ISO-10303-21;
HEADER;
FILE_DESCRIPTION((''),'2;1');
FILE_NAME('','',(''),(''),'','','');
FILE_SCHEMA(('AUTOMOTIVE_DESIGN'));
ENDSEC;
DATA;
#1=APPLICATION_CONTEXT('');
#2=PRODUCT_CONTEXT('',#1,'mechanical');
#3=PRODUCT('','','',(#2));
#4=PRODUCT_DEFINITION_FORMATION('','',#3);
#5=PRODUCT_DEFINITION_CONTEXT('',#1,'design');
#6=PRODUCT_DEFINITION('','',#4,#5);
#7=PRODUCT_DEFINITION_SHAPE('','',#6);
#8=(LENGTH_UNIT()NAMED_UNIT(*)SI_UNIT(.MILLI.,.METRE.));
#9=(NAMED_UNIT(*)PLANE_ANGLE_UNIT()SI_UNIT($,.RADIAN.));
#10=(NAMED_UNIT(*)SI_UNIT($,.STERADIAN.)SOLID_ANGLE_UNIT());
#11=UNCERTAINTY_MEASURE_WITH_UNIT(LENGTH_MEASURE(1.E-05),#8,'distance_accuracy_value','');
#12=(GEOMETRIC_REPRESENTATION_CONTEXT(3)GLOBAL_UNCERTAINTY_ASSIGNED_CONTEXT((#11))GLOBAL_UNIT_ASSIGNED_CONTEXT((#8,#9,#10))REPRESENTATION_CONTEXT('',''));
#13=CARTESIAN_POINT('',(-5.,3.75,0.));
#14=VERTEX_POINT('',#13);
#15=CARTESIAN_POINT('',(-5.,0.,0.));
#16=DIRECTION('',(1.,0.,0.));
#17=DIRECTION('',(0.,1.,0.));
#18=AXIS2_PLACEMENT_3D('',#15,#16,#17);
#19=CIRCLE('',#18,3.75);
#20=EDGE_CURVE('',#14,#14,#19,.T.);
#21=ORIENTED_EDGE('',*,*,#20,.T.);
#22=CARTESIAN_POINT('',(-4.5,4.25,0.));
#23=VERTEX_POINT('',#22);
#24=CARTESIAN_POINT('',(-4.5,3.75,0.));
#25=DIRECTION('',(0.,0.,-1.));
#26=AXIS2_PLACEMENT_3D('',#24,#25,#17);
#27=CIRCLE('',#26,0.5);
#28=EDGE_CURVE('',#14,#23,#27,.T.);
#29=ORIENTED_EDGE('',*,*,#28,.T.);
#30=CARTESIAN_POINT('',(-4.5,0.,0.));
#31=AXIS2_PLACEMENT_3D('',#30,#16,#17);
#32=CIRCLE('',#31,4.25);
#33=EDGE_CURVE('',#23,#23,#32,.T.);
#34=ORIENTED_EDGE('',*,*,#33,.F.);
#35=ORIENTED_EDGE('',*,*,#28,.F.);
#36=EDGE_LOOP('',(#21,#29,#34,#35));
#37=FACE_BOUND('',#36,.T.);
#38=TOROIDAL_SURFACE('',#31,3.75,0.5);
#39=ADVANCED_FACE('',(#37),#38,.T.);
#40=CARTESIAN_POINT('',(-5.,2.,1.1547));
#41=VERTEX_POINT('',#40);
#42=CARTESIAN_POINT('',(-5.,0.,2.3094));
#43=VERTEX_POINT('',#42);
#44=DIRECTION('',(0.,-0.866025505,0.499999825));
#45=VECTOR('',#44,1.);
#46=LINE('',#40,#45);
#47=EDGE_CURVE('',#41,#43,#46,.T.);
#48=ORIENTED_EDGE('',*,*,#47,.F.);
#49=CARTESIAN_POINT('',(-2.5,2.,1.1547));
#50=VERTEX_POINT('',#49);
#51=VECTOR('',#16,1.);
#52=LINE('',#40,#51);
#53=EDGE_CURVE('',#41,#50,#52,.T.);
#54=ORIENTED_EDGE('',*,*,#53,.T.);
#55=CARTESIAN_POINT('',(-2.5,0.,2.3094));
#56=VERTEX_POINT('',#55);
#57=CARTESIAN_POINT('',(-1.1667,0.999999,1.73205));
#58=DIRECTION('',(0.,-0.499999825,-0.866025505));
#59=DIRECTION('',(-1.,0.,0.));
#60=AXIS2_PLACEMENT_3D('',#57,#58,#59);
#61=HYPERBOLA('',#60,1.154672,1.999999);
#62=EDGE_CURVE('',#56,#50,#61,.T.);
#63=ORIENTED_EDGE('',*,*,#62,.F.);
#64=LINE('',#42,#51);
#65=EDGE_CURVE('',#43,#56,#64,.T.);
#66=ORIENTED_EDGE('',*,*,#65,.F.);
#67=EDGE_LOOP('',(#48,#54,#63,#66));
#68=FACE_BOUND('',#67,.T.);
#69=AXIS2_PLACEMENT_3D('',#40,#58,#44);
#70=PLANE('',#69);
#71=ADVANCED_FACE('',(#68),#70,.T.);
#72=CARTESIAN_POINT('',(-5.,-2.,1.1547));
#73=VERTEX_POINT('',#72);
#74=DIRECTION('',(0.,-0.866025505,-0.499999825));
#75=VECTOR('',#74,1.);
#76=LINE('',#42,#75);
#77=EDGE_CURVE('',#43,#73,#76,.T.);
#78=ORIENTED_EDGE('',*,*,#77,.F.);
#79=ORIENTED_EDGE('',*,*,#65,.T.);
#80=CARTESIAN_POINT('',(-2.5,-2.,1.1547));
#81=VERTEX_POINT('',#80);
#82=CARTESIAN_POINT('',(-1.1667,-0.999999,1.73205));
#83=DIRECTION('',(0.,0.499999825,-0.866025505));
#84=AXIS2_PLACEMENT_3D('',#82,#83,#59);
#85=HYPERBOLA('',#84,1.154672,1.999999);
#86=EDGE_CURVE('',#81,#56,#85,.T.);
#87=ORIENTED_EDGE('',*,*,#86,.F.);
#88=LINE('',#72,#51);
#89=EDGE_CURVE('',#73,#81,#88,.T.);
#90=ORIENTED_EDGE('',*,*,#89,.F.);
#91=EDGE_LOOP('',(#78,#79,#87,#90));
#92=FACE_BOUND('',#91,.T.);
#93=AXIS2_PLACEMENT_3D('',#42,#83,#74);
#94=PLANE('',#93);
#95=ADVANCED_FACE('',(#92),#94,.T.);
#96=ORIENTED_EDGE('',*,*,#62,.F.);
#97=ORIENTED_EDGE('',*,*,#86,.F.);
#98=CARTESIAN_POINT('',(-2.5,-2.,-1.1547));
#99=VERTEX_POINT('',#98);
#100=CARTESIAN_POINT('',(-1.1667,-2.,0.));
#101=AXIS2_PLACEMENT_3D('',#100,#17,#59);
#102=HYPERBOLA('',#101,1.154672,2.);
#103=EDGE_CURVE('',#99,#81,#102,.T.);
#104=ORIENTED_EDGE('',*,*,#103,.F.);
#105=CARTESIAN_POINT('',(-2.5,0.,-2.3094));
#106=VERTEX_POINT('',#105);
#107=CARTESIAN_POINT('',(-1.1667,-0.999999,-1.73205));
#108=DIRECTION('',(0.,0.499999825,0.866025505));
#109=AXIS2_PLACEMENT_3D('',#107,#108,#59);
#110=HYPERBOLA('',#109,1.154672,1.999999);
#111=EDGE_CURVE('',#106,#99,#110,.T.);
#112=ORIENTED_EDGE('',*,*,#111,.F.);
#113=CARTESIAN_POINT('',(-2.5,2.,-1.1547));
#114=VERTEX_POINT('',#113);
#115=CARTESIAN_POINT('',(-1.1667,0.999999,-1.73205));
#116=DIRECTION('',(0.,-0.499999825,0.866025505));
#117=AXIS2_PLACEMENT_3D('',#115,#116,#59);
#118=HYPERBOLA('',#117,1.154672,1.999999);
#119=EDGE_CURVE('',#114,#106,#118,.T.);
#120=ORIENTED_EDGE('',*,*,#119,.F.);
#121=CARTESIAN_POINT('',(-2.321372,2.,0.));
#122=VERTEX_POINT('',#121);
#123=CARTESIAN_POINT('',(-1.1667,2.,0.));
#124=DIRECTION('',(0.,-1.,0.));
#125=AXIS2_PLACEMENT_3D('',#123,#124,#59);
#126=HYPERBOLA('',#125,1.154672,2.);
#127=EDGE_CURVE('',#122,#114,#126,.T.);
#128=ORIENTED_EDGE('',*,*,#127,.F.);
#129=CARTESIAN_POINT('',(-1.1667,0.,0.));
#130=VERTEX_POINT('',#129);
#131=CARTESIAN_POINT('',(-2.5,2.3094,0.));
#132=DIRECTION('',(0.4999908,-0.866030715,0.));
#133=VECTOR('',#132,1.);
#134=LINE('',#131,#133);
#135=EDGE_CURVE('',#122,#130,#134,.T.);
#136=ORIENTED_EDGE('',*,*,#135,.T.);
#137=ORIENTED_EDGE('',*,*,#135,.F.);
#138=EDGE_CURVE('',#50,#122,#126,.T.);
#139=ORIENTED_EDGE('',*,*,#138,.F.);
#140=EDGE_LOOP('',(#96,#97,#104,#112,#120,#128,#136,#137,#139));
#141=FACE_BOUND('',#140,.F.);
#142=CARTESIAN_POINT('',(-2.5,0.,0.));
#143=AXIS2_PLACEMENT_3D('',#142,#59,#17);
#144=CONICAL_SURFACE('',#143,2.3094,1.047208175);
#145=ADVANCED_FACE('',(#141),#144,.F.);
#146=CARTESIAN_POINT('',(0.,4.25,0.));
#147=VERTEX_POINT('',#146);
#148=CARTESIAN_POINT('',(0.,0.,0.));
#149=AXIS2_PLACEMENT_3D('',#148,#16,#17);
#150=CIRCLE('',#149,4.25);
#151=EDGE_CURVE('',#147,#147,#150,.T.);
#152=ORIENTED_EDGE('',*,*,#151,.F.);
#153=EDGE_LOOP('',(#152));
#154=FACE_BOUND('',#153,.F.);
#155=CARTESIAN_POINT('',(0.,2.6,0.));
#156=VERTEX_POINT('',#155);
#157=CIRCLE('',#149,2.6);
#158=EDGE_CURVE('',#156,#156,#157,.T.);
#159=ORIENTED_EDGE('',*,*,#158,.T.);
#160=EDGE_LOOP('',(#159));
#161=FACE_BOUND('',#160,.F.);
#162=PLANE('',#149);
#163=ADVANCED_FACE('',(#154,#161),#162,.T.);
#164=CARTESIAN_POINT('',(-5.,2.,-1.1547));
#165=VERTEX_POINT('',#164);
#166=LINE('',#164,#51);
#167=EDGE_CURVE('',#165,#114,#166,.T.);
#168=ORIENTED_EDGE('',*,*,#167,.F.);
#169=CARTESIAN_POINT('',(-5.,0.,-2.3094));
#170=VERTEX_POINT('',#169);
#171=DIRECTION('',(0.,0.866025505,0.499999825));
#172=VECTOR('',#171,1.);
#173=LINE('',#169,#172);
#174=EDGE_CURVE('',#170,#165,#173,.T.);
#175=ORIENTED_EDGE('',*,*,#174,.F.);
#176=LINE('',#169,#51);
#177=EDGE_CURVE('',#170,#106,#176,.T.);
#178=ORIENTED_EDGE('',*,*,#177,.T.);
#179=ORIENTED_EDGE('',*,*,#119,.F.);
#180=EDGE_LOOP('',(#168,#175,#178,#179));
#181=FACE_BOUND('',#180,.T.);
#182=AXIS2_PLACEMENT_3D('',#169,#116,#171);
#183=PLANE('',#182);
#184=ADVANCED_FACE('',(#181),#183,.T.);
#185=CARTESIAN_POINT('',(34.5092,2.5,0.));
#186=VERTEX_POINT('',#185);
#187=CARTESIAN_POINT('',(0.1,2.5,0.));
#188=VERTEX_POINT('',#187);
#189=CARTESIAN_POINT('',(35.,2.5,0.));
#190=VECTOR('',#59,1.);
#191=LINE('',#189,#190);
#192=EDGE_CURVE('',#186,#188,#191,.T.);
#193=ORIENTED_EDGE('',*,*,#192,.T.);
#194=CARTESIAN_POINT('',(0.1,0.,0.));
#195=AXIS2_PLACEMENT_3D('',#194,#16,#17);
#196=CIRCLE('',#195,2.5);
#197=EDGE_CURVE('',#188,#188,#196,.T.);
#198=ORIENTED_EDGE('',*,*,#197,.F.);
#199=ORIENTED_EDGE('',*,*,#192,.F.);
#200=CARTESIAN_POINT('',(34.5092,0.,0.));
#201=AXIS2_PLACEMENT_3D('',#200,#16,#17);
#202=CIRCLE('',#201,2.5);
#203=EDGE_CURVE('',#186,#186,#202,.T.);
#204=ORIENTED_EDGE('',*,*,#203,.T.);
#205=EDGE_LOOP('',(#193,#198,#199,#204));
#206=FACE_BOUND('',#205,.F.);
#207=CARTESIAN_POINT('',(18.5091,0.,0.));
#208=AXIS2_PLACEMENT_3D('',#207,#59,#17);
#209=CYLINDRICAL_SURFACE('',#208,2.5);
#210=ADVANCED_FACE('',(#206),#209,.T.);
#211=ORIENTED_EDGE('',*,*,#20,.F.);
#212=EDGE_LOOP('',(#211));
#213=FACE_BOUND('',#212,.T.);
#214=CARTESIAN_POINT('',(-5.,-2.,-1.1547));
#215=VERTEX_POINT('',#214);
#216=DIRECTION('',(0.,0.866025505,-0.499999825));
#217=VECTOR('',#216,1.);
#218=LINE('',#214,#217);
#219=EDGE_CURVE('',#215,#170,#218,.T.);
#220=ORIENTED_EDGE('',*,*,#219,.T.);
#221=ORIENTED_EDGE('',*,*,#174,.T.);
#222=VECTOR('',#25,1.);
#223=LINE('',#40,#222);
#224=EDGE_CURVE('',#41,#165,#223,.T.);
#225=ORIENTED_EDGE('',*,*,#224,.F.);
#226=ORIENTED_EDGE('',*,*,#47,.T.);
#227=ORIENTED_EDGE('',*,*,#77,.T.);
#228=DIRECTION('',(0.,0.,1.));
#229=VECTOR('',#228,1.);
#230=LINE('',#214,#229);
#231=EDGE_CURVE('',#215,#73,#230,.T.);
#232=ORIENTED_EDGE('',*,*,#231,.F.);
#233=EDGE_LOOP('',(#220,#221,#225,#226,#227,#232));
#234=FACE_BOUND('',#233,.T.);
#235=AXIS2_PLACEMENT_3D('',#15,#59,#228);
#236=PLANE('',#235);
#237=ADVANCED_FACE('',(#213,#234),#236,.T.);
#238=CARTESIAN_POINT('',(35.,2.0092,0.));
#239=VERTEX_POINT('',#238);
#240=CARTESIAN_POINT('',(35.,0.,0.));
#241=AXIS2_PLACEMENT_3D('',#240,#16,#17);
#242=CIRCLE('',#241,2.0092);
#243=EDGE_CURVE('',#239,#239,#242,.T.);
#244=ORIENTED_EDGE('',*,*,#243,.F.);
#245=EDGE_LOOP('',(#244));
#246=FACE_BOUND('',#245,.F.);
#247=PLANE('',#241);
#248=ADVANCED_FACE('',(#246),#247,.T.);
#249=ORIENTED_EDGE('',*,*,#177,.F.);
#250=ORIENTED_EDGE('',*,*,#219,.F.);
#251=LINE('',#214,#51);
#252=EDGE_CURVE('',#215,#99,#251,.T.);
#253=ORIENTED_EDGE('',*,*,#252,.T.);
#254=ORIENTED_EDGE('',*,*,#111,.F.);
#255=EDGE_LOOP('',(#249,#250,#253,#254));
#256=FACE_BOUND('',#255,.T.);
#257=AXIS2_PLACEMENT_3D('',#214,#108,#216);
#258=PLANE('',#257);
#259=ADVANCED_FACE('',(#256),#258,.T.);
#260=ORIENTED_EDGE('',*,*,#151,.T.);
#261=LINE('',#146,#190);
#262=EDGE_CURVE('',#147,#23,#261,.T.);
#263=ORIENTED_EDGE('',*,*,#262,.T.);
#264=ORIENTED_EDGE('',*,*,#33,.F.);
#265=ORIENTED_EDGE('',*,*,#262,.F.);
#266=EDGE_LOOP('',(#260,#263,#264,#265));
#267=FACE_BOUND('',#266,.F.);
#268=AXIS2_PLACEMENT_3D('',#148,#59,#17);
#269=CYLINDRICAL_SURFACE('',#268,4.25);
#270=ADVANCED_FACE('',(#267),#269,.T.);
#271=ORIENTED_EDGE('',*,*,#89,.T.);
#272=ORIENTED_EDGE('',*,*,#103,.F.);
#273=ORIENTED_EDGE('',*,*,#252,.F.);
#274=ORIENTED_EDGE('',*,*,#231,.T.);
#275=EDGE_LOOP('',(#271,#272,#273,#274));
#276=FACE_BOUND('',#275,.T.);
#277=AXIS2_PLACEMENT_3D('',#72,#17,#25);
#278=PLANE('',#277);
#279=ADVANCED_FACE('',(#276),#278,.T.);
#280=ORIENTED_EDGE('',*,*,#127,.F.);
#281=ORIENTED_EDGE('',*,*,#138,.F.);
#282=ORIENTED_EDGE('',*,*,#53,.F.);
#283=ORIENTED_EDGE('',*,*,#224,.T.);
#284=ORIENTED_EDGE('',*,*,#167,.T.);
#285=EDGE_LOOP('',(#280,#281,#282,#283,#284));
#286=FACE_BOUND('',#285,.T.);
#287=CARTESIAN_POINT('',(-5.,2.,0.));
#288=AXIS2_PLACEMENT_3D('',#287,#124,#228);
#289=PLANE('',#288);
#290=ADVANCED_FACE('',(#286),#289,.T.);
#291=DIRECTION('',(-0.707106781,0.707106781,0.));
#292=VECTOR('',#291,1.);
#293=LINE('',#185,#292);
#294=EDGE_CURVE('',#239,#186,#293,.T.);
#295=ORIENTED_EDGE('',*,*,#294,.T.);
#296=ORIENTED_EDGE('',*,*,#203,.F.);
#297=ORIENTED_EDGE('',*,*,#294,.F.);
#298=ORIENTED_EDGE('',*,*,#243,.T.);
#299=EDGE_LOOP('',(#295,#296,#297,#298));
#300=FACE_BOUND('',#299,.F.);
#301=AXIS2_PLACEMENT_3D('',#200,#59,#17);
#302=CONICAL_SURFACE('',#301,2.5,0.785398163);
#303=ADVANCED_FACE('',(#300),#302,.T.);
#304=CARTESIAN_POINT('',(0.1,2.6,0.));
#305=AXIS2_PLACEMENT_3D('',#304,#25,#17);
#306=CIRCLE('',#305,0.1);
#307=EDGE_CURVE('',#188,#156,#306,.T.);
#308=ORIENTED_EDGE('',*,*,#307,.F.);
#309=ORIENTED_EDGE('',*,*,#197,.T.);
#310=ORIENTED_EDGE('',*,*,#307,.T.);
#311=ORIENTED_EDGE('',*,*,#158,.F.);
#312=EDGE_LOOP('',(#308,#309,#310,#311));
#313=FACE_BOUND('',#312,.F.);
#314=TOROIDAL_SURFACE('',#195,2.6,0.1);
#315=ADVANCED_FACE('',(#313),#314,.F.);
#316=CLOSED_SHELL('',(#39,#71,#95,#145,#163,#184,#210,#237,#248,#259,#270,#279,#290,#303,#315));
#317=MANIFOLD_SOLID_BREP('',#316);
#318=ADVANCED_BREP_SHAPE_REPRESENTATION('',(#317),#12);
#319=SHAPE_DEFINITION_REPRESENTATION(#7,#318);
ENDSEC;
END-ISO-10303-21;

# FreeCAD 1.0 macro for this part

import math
import FreeCAD as App
import Part
import Sketcher
Q = App.Units.Quantity


def edges_at(feature, points):
    """Names of the edges that pass closest to the given points."""
    edges = feature.Shape.Edges
    near = lambda p: min(range(len(edges)), key=lambda i: edges[i].distToShape(Part.Vertex(*p))[0])
    return sorted({f"Edge{near(p) + 1}" for p in points})

doc = App.newDocument("Part")
body = doc.addObject("PartDesign::Body", "Body")

# Sketch on XY plane
sketch1 = body.newObject("Sketcher::SketchObject", "Sketch")
sketch1.AttachmentSupport = (doc.getObject("XY_Plane"), [""])
sketch1.MapMode = "FlatFace"
sketch1.addGeometry(Part.LineSegment(App.Vector(-2.5, 2.3, 0), App.Vector(-1.2, 0, 0)), False)
sketch1.addGeometry(Part.LineSegment(App.Vector(-1.2, 0, 0), App.Vector(35, 0, 0)), False)
sketch1.addGeometry(Part.LineSegment(App.Vector(35, 0, 0), App.Vector(35, 2.5, 0)), False)
sketch1.addGeometry(Part.LineSegment(App.Vector(35, 2.5, 0), App.Vector(0, 2.5, 0)), False)
sketch1.addGeometry(Part.LineSegment(App.Vector(0, 2.5, 0), App.Vector(0, 4.2, 0)), False)
sketch1.addGeometry(Part.LineSegment(App.Vector(0, 4.2, 0), App.Vector(-5, 4.2, 0)), False)
sketch1.addGeometry(Part.LineSegment(App.Vector(-5, 4.2, 0), App.Vector(-5, 2.3, 0)), False)
sketch1.addGeometry(Part.LineSegment(App.Vector(-5, 2.3, 0), App.Vector(-2.5, 2.3, 0)), False)
sketch1.addConstraint(Sketcher.Constraint("Coincident", 0, 2, 1, 1))
sketch1.addConstraint(Sketcher.Constraint("Coincident", 1, 2, 2, 1))
sketch1.addConstraint(Sketcher.Constraint("Coincident", 2, 2, 3, 1))
sketch1.addConstraint(Sketcher.Constraint("Coincident", 3, 2, 4, 1))
sketch1.addConstraint(Sketcher.Constraint("Coincident", 4, 2, 5, 1))
sketch1.addConstraint(Sketcher.Constraint("Coincident", 5, 2, 6, 1))
sketch1.addConstraint(Sketcher.Constraint("Coincident", 6, 2, 7, 1))
sketch1.addConstraint(Sketcher.Constraint("Coincident", 7, 2, 0, 1))
sketch1.addConstraint(Sketcher.Constraint("Horizontal", 1))
sketch1.addConstraint(Sketcher.Constraint("Vertical", 2))
sketch1.addConstraint(Sketcher.Constraint("Horizontal", 3))
sketch1.addConstraint(Sketcher.Constraint("Vertical", 4))
sketch1.addConstraint(Sketcher.Constraint("Horizontal", 5))
sketch1.addConstraint(Sketcher.Constraint("Vertical", 6))
sketch1.addConstraint(Sketcher.Constraint("Horizontal", 7))
sketch1.addConstraint(Sketcher.Constraint("PointOnObject", 0, 2, -1))
sketch1.addConstraint(Sketcher.Constraint("PointOnObject", 3, 2, -2))
sketch1.addConstraint(Sketcher.Constraint("Equal", 7, 2))
sketch1.addConstraint(Sketcher.Constraint("DistanceX", 3, 2, 3, 1, Q("35 mm")))
sketch1.addConstraint(Sketcher.Constraint("DistanceX", 5, 2, 5, 1, Q("5 mm")))
sketch1.addConstraint(Sketcher.Constraint("DistanceX", 7, 1, 7, 2, Q("2.5 mm")))
sketch1.addConstraint(Sketcher.Constraint("Angle", 0, Q("-60.0006 deg")))
sketch1.addConstraint(Sketcher.Constraint("DistanceY", 4, 1, 4, 2, Q("1.75 mm")))
sketch1.addConstraint(Sketcher.Constraint("DistanceX", 1, 1, 1, 2, Q("36.1667 mm")))
revolution = body.newObject("PartDesign::Revolution", "Revolution")
revolution.Profile = sketch1
revolution.ReferenceAxis = (sketch1, ["H_Axis"])
revolution.Angle = 360

# Sketch on YZ plane
sketch2 = body.newObject("Sketcher::SketchObject", "Sketch001")
sketch2.AttachmentSupport = (doc.getObject("YZ_Plane"), [""])
sketch2.MapMode = "FlatFace"
sketch2.AttachmentOffset = App.Placement(App.Vector(0, 0, -5), App.Rotation())
sketch2.addGeometry(Part.LineSegment(App.Vector(2, 1.2, 0), App.Vector(0, 2.3, 0)), False)
sketch2.addGeometry(Part.ArcOfCircle(Part.Circle(App.Vector(0, 0, 0), App.Vector(0, 0, 1), 2.3), math.radians(30), math.radians(90)), False)
sketch2.addGeometry(Part.ArcOfCircle(Part.Circle(App.Vector(0, 0, 0), App.Vector(0, 0, 1), 2.3), math.radians(90), math.radians(150)), False)
sketch2.addGeometry(Part.LineSegment(App.Vector(0, 2.3, 0), App.Vector(-2, 1.2, 0)), False)
sketch2.addGeometry(Part.ArcOfCircle(Part.Circle(App.Vector(0, 0, 0), App.Vector(0, 0, 1), 2.3), math.radians(-30), math.radians(30)), False)
sketch2.addGeometry(Part.LineSegment(App.Vector(2, -1.2, 0), App.Vector(2, 1.2, 0)), False)
sketch2.addGeometry(Part.LineSegment(App.Vector(-2, 1.2, 0), App.Vector(-2, -1.2, 0)), False)
sketch2.addGeometry(Part.ArcOfCircle(Part.Circle(App.Vector(0, 0, 0), App.Vector(0, 0, 1), 2.3), math.radians(150), math.radians(210)), False)
sketch2.addGeometry(Part.LineSegment(App.Vector(-2, -1.2, 0), App.Vector(0, -2.3, 0)), False)
sketch2.addGeometry(Part.ArcOfCircle(Part.Circle(App.Vector(0, 0, 0), App.Vector(0, 0, 1), 2.3), math.radians(-150), math.radians(-90)), False)
sketch2.addGeometry(Part.ArcOfCircle(Part.Circle(App.Vector(0, 0, 0), App.Vector(0, 0, 1), 2.3), math.radians(-90), math.radians(-30)), False)
sketch2.addGeometry(Part.LineSegment(App.Vector(0, -2.3, 0), App.Vector(2, -1.2, 0)), False)
sketch2.addConstraint(Sketcher.Constraint("Coincident", 0, 1, 1, 1))
sketch2.addConstraint(Sketcher.Constraint("Coincident", 1, 2, 0, 2))
sketch2.addConstraint(Sketcher.Constraint("Coincident", 2, 1, 3, 1))
sketch2.addConstraint(Sketcher.Constraint("Coincident", 3, 2, 2, 2))
sketch2.addConstraint(Sketcher.Constraint("Coincident", 4, 1, 5, 1))
sketch2.addConstraint(Sketcher.Constraint("Coincident", 5, 2, 4, 2))
sketch2.addConstraint(Sketcher.Constraint("Coincident", 6, 1, 7, 1))
sketch2.addConstraint(Sketcher.Constraint("Coincident", 7, 2, 6, 2))
sketch2.addConstraint(Sketcher.Constraint("Coincident", 8, 1, 9, 1))
sketch2.addConstraint(Sketcher.Constraint("Coincident", 9, 2, 8, 2))
sketch2.addConstraint(Sketcher.Constraint("Coincident", 10, 1, 11, 1))
sketch2.addConstraint(Sketcher.Constraint("Coincident", 11, 2, 10, 2))
sketch2.addConstraint(Sketcher.Constraint("Vertical", 5))
sketch2.addConstraint(Sketcher.Constraint("Vertical", 6))
sketch2.addConstraint(Sketcher.Constraint("Coincident", 1, 3, -1, 1))
sketch2.addConstraint(Sketcher.Constraint("Coincident", 2, 3, -1, 1))
sketch2.addConstraint(Sketcher.Constraint("Coincident", 4, 3, -1, 1))
sketch2.addConstraint(Sketcher.Constraint("Coincident", 7, 3, -1, 1))
sketch2.addConstraint(Sketcher.Constraint("Coincident", 9, 3, -1, 1))
sketch2.addConstraint(Sketcher.Constraint("Coincident", 10, 3, -1, 1))
sketch2.addConstraint(Sketcher.Constraint("Coincident", 2, 1, 1, 2))
sketch2.addConstraint(Sketcher.Constraint("Coincident", 5, 2, 0, 1))
sketch2.addConstraint(Sketcher.Constraint("Coincident", 6, 1, 3, 2))
sketch2.addConstraint(Sketcher.Constraint("Coincident", 8, 1, 7, 2))
sketch2.addConstraint(Sketcher.Constraint("Coincident", 10, 1, 9, 2))
sketch2.addConstraint(Sketcher.Constraint("PointOnObject", 1, 2, -2))
sketch2.addConstraint(Sketcher.Constraint("PointOnObject", 9, 2, -2))
sketch2.addConstraint(Sketcher.Constraint("Parallel", 0, 8))
sketch2.addConstraint(Sketcher.Constraint("Parallel", 3, 11))
sketch2.addConstraint(Sketcher.Constraint("Angle", 0, Q("150 deg")))
sketch2.addConstraint(Sketcher.Constraint("DistanceX", -1, 1, 0, 1, Q("2 mm")))
pad1 = body.newObject("PartDesign::Pad", "Pad")
pad1.Profile = sketch2
pad1.Length = 2.6786
doc.recompute()

fillet = body.newObject("PartDesign::Fillet", "Fillet")
fillet.Base = (pad1, edges_at(pad1, [(-5, -4.25, 0)]))
fillet.Radius = 0.5
doc.recompute()

chamfer = body.newObject("PartDesign::Chamfer", "Chamfer")
chamfer.Base = (fillet, edges_at(fillet, [(35, -2.5, 0)]))
chamfer.ChamferType = "Two distances"
chamfer.Size = 0.4908
chamfer.Size2 = 0.4908
doc.recompute()

fillet2 = body.newObject("PartDesign::Fillet", "Fillet001")
fillet2.Base = (chamfer, edges_at(chamfer, [(0, -2.5, 0)]))
fillet2.Radius = 0.1

doc.recompute()
